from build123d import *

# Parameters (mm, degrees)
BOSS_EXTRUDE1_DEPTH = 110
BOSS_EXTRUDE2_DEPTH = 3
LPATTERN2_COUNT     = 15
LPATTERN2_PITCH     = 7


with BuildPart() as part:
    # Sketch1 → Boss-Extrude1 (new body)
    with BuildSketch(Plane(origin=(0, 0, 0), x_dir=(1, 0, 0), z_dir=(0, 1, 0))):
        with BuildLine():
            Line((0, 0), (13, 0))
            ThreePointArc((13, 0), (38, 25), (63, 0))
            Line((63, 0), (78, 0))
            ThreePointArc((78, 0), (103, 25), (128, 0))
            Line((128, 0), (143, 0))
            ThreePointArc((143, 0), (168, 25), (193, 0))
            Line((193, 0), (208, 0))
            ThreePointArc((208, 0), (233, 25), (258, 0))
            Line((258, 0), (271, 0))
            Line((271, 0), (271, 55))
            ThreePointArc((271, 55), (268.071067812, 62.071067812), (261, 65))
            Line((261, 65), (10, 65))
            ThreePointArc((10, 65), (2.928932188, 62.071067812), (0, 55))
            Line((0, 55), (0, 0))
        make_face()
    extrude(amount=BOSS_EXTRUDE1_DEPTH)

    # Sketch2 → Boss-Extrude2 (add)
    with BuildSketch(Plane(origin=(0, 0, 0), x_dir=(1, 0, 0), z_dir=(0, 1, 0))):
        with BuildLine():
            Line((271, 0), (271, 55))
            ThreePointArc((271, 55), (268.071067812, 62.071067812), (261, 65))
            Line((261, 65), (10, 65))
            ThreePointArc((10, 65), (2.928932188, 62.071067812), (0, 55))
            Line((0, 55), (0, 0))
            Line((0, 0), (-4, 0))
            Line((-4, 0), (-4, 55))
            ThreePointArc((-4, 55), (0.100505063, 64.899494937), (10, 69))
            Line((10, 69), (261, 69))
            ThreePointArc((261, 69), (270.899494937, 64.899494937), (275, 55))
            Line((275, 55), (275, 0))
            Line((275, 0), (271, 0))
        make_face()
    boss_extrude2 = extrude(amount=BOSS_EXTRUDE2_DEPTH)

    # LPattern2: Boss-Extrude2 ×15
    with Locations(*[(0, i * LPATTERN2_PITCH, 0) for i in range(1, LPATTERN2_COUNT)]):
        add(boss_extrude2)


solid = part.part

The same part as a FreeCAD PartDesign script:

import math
import FreeCAD as App
import Part
import Sketcher
Q = App.Units.Quantity

doc = App.newDocument("Part")
body = doc.addObject("PartDesign::Body", "Body")

sketch1 = body.newObject("Sketcher::SketchObject", "Sketch")
sketch1.AttachmentSupport = (doc.getObject("XZ_Plane"), [""])
sketch1.MapMode = "FlatFace"
sketch1.addGeometry([
    Part.LineSegment(App.Vector(0, 0, 0), App.Vector(13, 0, 0)),
    Part.ArcOfCircle(Part.Circle(App.Vector(38, 0, 0), App.Vector(0, 0, 1), 25), math.radians(180), math.radians(360)),
    Part.LineSegment(App.Vector(63, 0, 0), App.Vector(78, 0, 0)),
    Part.ArcOfCircle(Part.Circle(App.Vector(103, 0, 0), App.Vector(0, 0, 1), 25), math.radians(180), math.radians(360)),
    Part.LineSegment(App.Vector(128, 0, 0), App.Vector(143, 0, 0)),
    Part.ArcOfCircle(Part.Circle(App.Vector(168, 0, 0), App.Vector(0, 0, 1), 25), math.radians(180), math.radians(360)),
    Part.LineSegment(App.Vector(193, 0, 0), App.Vector(208, 0, 0)),
    Part.ArcOfCircle(Part.Circle(App.Vector(233, 0, 0), App.Vector(0, 0, 1), 25), math.radians(180), math.radians(360)),
    Part.LineSegment(App.Vector(258, 0, 0), App.Vector(271, 0, 0)),
    Part.LineSegment(App.Vector(271, 0, 0), App.Vector(271, -55, 0)),
    Part.ArcOfCircle(Part.Circle(App.Vector(261, -55, 0), App.Vector(0, 0, 1), 10), math.radians(-90), math.radians(0)),
    Part.LineSegment(App.Vector(261, -65, 0), App.Vector(10, -65, 0)),
    Part.ArcOfCircle(Part.Circle(App.Vector(10, -55, 0), App.Vector(0, 0, 1), 10), math.radians(180), math.radians(270)),
    Part.LineSegment(App.Vector(0, -55, 0), App.Vector(0, 0, 0)),
], False)
sketch1.addConstraint([
    Sketcher.Constraint("Coincident", 0, 2, 1, 1),
    Sketcher.Constraint("Coincident", 1, 2, 2, 1),
    Sketcher.Constraint("Coincident", 2, 2, 3, 1),
    Sketcher.Constraint("Coincident", 3, 2, 4, 1),
    Sketcher.Constraint("Coincident", 4, 2, 5, 1),
    Sketcher.Constraint("Coincident", 5, 2, 6, 1),
    Sketcher.Constraint("Coincident", 6, 2, 7, 1),
    Sketcher.Constraint("Coincident", 7, 2, 8, 1),
    Sketcher.Constraint("Coincident", 8, 2, 9, 1),
    Sketcher.Constraint("Tangent", 9, 2, 10, 2),
    Sketcher.Constraint("Tangent", 10, 1, 11, 1),
    Sketcher.Constraint("Tangent", 11, 2, 12, 2),
    Sketcher.Constraint("Tangent", 12, 1, 13, 1),
    Sketcher.Constraint("Coincident", 13, 2, 0, 1),
    Sketcher.Constraint("Horizontal", 0),
    Sketcher.Constraint("Horizontal", 2),
    Sketcher.Constraint("Horizontal", 4),
    Sketcher.Constraint("Horizontal", 6),
    Sketcher.Constraint("Horizontal", 8),
    Sketcher.Constraint("Vertical", 9),
    Sketcher.Constraint("Horizontal", 11),
    Sketcher.Constraint("Vertical", 13),
    Sketcher.Constraint("Coincident", 13, 2, -1, 1),
    Sketcher.Constraint("Equal", 1, 3),
    Sketcher.Constraint("Equal", 3, 5),
    Sketcher.Constraint("Equal", 5, 7),
    Sketcher.Constraint("Equal", 10, 12),
    Sketcher.Constraint("PointOnObject", 1, 3, -1),
    Sketcher.Constraint("PointOnObject", 3, 3, -1),
    Sketcher.Constraint("PointOnObject", 5, 3, -1),
    Sketcher.Constraint("PointOnObject", 7, 3, -1),
    Sketcher.Constraint("PointOnObject", 1, 2, -1),
    Sketcher.Constraint("PointOnObject", 3, 2, -1),
    Sketcher.Constraint("PointOnObject", 5, 2, -1),
    Sketcher.Constraint("PointOnObject", 7, 2, -1),
    Sketcher.Constraint("Equal", 2, 4),
    Sketcher.Constraint("Equal", 4, 6),
    Sketcher.Constraint("Equal", 0, 8),
    Sketcher.Constraint("Radius", 1, Q("25 mm")),
    Sketcher.Constraint("Radius", 10, Q("10 mm")),
    Sketcher.Constraint("DistanceX", 0, 1, 0, 2, Q("13 mm")),
    Sketcher.Constraint("DistanceX", 2, 1, 2, 2, Q("15 mm")),
    Sketcher.Constraint("DistanceY", 9, 2, 9, 1, Q("55 mm")),
])
pad1 = body.newObject("PartDesign::Pad", "Pad")
pad1.Profile = sketch1
pad1.Length = 110
pad1.Reversed = True

sketch2 = body.newObject("Sketcher::SketchObject", "Sketch001")
sketch2.AttachmentSupport = (doc.getObject("XZ_Plane"), [""])
sketch2.MapMode = "FlatFace"
sketch2.addGeometry([
    Part.LineSegment(App.Vector(271, -55, 0), App.Vector(271, 0, 0)),
    Part.LineSegment(App.Vector(271, 0, 0), App.Vector(275, 0, 0)),
    Part.LineSegment(App.Vector(275, 0, 0), App.Vector(275, -55, 0)),
    Part.ArcOfCircle(Part.Circle(App.Vector(261, -55, 0), App.Vector(0, 0, 1), 14), math.radians(-90), math.radians(0)),
    Part.LineSegment(App.Vector(261, -69, 0), App.Vector(10, -69, 0)),
    Part.ArcOfCircle(Part.Circle(App.Vector(10, -55, 0), App.Vector(0, 0, 1), 14), math.radians(180), math.radians(270)),
    Part.LineSegment(App.Vector(-4, -55, 0), App.Vector(-4, 0, 0)),
    Part.LineSegment(App.Vector(-4, 0, 0), App.Vector(0, 0, 0)),
    Part.LineSegment(App.Vector(0, 0, 0), App.Vector(0, -55, 0)),
    Part.ArcOfCircle(Part.Circle(App.Vector(10, -55, 0), App.Vector(0, 0, 1), 10), math.radians(180), math.radians(270)),
    Part.LineSegment(App.Vector(10, -65, 0), App.Vector(261, -65, 0)),
    Part.ArcOfCircle(Part.Circle(App.Vector(261, -55, 0), App.Vector(0, 0, 1), 10), math.radians(-90), math.radians(0)),
], False)
sketch2.addConstraint([
    Sketcher.Constraint("Coincident", 0, 2, 1, 1),
    Sketcher.Constraint("Coincident", 1, 2, 2, 1),
    Sketcher.Constraint("Tangent", 2, 2, 3, 2),
    Sketcher.Constraint("Tangent", 3, 1, 4, 1),
    Sketcher.Constraint("Tangent", 4, 2, 5, 2),
    Sketcher.Constraint("Tangent", 5, 1, 6, 1),
    Sketcher.Constraint("Coincident", 6, 2, 7, 1),
    Sketcher.Constraint("Coincident", 7, 2, 8, 1),
    Sketcher.Constraint("Tangent", 8, 2, 9, 1),
    Sketcher.Constraint("Tangent", 9, 2, 10, 1),
    Sketcher.Constraint("Tangent", 10, 2, 11, 1),
    Sketcher.Constraint("Tangent", 11, 2, 0, 1),
    Sketcher.Constraint("Vertical", 0),
    Sketcher.Constraint("Horizontal", 1),
    Sketcher.Constraint("Vertical", 2),
    Sketcher.Constraint("Horizontal", 4),
    Sketcher.Constraint("Vertical", 6),
    Sketcher.Constraint("Horizontal", 7),
    Sketcher.Constraint("Vertical", 8),
    Sketcher.Constraint("Horizontal", 10),
    Sketcher.Constraint("Coincident", 7, 2, -1, 1),
    Sketcher.Constraint("Coincident", 9, 3, 5, 3),
    Sketcher.Constraint("Coincident", 11, 3, 3, 3),
    Sketcher.Constraint("Equal", 3, 5),
    Sketcher.Constraint("PointOnObject", 0, 2, -1),
    Sketcher.Constraint("Radius", 3, Q("14 mm")),
    Sketcher.Constraint("Radius", 9, Q("10 mm")),
    Sketcher.Constraint("DistanceX", 4, 2, 4, 1, Q("251 mm")),
    Sketcher.Constraint("DistanceY", 0, 1, 0, 2, Q("55 mm")),
])
pad2 = body.newObject("PartDesign::Pad", "Pad001")
pad2.Profile = sketch2
pad2.Length = 3
pad2.Reversed = True
doc.recompute()

linearpattern = body.newObject("PartDesign::LinearPattern", "LinearPattern")
linearpattern.Originals = [pad2]
linearpattern.Direction = (doc.getObject("Y_Axis"), [""])
linearpattern.Mode = "offset"
linearpattern.Offset = 7
linearpattern.Occurrences = 15
body.Tip = linearpattern

doc.recompute()
